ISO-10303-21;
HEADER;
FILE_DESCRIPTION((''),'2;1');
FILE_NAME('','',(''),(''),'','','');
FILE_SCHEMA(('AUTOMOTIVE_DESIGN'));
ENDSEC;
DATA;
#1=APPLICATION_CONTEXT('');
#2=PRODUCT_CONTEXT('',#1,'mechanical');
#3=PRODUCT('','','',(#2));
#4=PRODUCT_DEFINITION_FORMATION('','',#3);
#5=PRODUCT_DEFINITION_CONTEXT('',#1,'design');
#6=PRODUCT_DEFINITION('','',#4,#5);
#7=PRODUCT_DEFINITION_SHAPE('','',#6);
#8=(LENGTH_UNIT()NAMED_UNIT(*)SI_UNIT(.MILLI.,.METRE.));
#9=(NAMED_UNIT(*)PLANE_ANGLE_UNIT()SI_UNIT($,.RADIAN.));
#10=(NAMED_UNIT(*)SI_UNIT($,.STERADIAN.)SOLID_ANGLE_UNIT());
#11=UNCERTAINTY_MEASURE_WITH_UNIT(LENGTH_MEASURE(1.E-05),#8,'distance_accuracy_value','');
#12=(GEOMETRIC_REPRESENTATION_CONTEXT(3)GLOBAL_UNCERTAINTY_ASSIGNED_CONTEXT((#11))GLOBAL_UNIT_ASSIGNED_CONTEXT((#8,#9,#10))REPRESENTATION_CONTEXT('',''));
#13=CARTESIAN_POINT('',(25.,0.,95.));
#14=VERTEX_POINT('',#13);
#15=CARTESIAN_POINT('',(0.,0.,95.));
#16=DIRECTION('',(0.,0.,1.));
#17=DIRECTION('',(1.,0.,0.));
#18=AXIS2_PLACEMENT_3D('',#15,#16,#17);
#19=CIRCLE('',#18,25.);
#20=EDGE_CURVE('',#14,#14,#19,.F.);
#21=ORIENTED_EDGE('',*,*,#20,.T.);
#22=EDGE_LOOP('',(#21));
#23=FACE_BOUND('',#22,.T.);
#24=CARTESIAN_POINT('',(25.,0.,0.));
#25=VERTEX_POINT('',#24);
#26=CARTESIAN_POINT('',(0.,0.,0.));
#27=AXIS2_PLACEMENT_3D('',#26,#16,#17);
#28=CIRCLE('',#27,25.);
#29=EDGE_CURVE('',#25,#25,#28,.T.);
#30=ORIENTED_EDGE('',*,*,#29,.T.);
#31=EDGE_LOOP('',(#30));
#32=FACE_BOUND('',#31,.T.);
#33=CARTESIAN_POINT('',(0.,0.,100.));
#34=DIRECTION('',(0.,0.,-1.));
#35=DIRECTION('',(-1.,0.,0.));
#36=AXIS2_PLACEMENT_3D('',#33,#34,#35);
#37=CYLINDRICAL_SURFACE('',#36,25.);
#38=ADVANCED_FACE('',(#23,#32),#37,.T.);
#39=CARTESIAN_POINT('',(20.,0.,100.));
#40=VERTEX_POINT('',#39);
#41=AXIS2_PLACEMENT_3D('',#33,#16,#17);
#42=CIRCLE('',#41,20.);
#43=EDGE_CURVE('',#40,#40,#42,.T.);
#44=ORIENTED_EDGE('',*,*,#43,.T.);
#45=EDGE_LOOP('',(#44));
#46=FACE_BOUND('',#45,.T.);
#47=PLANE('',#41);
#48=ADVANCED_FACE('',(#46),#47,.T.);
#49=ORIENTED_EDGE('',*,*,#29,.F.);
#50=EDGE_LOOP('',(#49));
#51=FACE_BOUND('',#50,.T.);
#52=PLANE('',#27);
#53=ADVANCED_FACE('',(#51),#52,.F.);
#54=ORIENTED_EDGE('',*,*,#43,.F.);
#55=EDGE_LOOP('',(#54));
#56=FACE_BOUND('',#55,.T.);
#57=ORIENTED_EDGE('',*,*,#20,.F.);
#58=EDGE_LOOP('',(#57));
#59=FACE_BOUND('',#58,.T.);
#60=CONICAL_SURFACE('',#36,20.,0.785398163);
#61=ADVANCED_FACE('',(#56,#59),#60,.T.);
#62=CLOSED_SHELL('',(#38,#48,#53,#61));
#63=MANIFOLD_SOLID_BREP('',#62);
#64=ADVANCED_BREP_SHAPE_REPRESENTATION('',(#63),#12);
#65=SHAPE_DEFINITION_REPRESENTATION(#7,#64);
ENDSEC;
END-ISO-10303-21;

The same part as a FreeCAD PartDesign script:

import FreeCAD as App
import Part
import Sketcher
from FreeCAD import Vector


def edges_at(feature, points):
    """Names of the edges that pass closest to the given points."""
    edges = feature.Shape.Edges
    near = lambda p: min(range(len(edges)), key=lambda i: edges[i].distToShape(Part.Vertex(*p))[0])
    return sorted({f"Edge{near(p) + 1}" for p in points})

doc = App.newDocument("Part")
params = doc.addObject("Spreadsheet::Sheet", "Params")
for row, (alias, value) in enumerate([
    ("sketch1_diameter", "50 mm"),
    ("pad1_length", "100 mm"),
    ("chamfer_size", "5 mm"),
], start=1):
    params.set(f"A{row}", alias)
    params.set(f"B{row}", "=" + value)
    params.setAlias(f"B{row}", alias)

body = doc.addObject("PartDesign::Body", "Body")

# Sketch on XY plane
sketch1 = body.newObject("Sketcher::SketchObject", "Sketch")
sketch1.AttachmentSupport = (doc.getObject("XY_Plane"), [""])
sketch1.MapMode = "FlatFace"
sketch1.addGeometry(Part.Circle(Vector(0, 0, 0), Vector(0, 0, 1), 25), False)
sketch1.addConstraint([
    Sketcher.Constraint("Coincident", 0, 3, -1, 1),
    Sketcher.Constraint("Diameter", 0, 50.0),
])
sketch1.setExpression("Constraints[1]", "Params.sketch1_diameter")
pad1 = body.newObject("PartDesign::Pad", "Pad")
pad1.Profile = sketch1
pad1.setExpression("Length", "Params.pad1_length")
doc.recompute()

chamfer = body.newObject("PartDesign::Chamfer", "Chamfer")
chamfer.Base = (pad1, edges_at(pad1, [(-25, 0, 100)]))
chamfer.setExpression("Size", "Params.chamfer_size")

doc.recompute()
